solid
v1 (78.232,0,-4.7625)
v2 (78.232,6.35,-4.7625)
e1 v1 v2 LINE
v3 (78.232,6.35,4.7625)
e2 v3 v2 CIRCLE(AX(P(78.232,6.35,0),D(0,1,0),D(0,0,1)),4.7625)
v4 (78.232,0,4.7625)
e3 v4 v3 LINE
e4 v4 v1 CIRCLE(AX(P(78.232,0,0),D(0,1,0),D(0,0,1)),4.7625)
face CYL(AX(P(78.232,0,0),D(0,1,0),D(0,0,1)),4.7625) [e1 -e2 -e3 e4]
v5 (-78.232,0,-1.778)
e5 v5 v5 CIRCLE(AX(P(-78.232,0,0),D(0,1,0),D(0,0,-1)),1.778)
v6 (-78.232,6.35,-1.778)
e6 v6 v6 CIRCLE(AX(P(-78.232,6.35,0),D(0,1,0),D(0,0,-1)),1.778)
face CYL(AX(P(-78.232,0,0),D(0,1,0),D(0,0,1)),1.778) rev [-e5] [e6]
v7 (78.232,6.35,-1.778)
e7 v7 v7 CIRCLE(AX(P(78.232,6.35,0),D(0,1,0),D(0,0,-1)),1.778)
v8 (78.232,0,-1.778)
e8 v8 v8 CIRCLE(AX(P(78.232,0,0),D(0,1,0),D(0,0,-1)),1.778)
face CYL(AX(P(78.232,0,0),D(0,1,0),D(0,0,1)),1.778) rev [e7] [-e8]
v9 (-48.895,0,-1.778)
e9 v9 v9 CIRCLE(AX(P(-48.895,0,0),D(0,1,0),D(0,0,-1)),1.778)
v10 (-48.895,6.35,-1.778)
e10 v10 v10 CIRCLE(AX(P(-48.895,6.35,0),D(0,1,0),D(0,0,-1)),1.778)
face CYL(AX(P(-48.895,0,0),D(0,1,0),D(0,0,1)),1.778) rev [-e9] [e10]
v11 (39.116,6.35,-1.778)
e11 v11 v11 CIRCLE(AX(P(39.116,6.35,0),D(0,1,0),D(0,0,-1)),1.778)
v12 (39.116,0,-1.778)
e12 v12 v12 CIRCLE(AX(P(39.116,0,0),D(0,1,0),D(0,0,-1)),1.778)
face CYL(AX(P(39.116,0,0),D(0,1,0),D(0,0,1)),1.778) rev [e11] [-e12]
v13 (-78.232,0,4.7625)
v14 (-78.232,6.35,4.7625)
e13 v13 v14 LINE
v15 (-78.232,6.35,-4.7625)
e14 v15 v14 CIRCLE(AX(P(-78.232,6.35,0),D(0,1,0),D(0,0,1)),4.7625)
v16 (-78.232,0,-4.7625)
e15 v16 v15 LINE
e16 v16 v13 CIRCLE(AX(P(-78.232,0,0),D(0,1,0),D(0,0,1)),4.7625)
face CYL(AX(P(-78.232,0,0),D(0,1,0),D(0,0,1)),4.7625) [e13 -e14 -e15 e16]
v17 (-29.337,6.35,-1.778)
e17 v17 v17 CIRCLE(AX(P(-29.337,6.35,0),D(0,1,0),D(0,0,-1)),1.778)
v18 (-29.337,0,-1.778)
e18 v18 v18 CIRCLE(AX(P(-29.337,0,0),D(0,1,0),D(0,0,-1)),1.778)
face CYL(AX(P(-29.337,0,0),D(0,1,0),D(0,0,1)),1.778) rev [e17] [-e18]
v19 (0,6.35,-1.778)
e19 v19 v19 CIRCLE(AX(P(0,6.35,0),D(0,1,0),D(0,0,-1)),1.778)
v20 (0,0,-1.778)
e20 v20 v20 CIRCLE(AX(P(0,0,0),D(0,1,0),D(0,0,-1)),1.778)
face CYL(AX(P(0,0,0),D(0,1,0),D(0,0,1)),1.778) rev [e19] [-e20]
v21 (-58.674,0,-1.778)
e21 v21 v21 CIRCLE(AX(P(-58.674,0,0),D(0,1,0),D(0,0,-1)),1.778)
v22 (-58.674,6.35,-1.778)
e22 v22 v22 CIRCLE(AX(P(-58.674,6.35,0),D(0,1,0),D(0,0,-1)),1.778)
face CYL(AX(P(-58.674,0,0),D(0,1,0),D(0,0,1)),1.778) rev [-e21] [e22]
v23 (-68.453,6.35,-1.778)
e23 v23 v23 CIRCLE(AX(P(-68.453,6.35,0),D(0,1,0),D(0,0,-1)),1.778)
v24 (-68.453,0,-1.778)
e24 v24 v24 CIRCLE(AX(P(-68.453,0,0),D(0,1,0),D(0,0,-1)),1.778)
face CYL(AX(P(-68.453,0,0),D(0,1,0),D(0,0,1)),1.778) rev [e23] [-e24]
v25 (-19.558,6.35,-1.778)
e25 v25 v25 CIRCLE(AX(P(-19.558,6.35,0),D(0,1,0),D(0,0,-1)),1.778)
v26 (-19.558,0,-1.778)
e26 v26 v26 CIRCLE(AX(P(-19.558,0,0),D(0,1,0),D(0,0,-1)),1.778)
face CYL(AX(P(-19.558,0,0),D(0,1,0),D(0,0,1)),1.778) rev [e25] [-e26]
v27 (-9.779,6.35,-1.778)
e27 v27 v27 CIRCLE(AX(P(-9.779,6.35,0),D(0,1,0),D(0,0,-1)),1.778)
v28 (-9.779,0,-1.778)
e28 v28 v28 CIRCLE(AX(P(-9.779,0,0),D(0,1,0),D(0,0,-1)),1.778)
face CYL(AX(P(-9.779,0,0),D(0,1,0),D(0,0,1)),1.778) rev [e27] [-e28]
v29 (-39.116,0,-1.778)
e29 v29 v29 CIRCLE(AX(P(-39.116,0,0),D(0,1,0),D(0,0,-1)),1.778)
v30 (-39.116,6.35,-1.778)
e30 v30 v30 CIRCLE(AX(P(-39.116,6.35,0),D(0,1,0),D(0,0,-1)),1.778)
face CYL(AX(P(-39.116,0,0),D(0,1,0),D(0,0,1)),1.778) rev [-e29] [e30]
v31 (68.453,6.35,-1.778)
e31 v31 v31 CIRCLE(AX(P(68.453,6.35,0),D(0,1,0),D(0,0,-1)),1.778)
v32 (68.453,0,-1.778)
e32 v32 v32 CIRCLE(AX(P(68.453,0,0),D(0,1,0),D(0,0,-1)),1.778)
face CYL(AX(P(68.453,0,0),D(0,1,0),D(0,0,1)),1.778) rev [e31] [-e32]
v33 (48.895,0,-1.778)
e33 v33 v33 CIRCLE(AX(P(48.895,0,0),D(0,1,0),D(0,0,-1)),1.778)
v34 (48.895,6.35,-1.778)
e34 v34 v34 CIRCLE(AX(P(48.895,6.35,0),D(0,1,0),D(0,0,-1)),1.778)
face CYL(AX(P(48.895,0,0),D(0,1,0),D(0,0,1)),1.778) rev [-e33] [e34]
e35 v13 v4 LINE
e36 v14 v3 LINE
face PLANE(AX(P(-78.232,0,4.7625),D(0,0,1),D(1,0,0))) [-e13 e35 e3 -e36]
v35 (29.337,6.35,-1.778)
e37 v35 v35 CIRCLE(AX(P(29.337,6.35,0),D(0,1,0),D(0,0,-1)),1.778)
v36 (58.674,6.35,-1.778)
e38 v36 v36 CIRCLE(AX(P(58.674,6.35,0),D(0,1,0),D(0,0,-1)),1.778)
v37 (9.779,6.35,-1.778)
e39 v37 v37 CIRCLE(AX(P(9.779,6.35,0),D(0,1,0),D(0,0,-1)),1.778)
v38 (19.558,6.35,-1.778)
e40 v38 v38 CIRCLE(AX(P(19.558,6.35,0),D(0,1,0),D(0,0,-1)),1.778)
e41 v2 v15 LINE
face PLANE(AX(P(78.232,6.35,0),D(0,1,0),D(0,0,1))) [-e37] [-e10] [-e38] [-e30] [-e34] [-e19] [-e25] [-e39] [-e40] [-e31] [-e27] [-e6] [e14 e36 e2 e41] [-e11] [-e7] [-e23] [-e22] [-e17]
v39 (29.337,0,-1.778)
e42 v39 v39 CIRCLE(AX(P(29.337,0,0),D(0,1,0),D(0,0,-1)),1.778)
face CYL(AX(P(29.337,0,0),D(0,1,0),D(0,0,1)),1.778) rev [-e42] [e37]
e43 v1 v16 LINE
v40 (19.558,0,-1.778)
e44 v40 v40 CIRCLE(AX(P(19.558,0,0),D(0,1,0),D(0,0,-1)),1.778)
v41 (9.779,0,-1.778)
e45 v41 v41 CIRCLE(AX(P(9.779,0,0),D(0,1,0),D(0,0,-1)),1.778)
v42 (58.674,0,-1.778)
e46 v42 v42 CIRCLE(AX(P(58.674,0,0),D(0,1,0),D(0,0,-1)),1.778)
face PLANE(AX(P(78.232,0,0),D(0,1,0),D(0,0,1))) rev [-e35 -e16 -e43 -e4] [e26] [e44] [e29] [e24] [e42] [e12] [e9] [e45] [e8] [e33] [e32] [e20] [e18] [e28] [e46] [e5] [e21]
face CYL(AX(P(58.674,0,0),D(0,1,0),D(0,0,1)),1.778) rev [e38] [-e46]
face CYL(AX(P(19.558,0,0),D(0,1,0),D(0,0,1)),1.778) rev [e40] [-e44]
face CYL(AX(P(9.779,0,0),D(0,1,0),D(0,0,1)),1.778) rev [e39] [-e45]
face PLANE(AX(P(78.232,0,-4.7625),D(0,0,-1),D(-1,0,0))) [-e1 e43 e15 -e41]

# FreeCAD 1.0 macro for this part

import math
import FreeCAD as App
import Part
import Sketcher
from FreeCAD import Vector
Q = App.Units.Quantity

doc = App.newDocument("Part")
body = doc.addObject("PartDesign::Body", "Body")

sketch1 = body.newObject("Sketcher::SketchObject", "Sketch")
sketch1.AttachmentSupport = (doc.getObject("XZ_Plane"), [""])
sketch1.MapMode = "FlatFace"
sketch1.AttachmentOffset = App.Placement(Vector(0, 0, -0.25 * 25.4), App.Rotation())
sketch1.addGeometry(Part.LineSegment(Vector(78.2, -4.8, 0), Vector(-78.2, -4.8, 0)), False)
sketch1.addGeometry(Part.ArcOfCircle(Part.Circle(Vector(-78.2, 0, 0), Vector(0, 0, 1), 4.8), math.radians(90), math.radians(270)), False)
sketch1.addGeometry(Part.LineSegment(Vector(-78.2, 4.8, 0), Vector(78.2, 4.8, 0)), False)
sketch1.addGeometry(Part.ArcOfCircle(Part.Circle(Vector(78.2, 0, 0), Vector(0, 0, 1), 4.8), math.radians(-90), math.radians(90)), False)
sketch1.addGeometry(Part.Circle(Vector(-78.2, 0, 0), Vector(0, 0, 1), 1.8), False)
sketch1.addGeometry(Part.Circle(Vector(-68.5, 0, 0), Vector(0, 0, 1), 1.8), False)
sketch1.addGeometry(Part.Circle(Vector(-58.7, 0, 0), Vector(0, 0, 1), 1.8), False)
sketch1.addGeometry(Part.Circle(Vector(-48.9, 0, 0), Vector(0, 0, 1), 1.8), False)
sketch1.addGeometry(Part.Circle(Vector(-39.1, 0, 0), Vector(0, 0, 1), 1.8), False)
sketch1.addGeometry(Part.Circle(Vector(-29.3, 0, 0), Vector(0, 0, 1), 1.8), False)
sketch1.addGeometry(Part.Circle(Vector(-19.6, 0, 0), Vector(0, 0, 1), 1.8), False)
sketch1.addGeometry(Part.Circle(Vector(-9.8, 0, 0), Vector(0, 0, 1), 1.8), False)
sketch1.addGeometry(Part.Circle(Vector(0, 0, 0), Vector(0, 0, 1), 1.8), False)
sketch1.addGeometry(Part.Circle(Vector(9.8, 0, 0), Vector(0, 0, 1), 1.8), False)
sketch1.addGeometry(Part.Circle(Vector(19.6, 0, 0), Vector(0, 0, 1), 1.8), False)
sketch1.addGeometry(Part.Circle(Vector(29.3, 0, 0), Vector(0, 0, 1), 1.8), False)
sketch1.addGeometry(Part.Circle(Vector(39.1, 0, 0), Vector(0, 0, 1), 1.8), False)
sketch1.addGeometry(Part.Circle(Vector(48.9, 0, 0), Vector(0, 0, 1), 1.8), False)
sketch1.addGeometry(Part.Circle(Vector(58.7, 0, 0), Vector(0, 0, 1), 1.8), False)
sketch1.addGeometry(Part.Circle(Vector(68.5, 0, 0), Vector(0, 0, 1), 1.8), False)
sketch1.addGeometry(Part.Circle(Vector(78.2, 0, 0), Vector(0, 0, 1), 1.8), False)
sketch1.addConstraint(Sketcher.Constraint("Tangent", 0, 2, 1, 2))
sketch1.addConstraint(Sketcher.Constraint("Tangent", 1, 1, 2, 1))
sketch1.addConstraint(Sketcher.Constraint("Tangent", 2, 2, 3, 2))
sketch1.addConstraint(Sketcher.Constraint("Tangent", 3, 1, 0, 1))
sketch1.addConstraint(Sketcher.Constraint("Horizontal", 0))
sketch1.addConstraint(Sketcher.Constraint("Horizontal", 2))
sketch1.addConstraint(Sketcher.Constraint("Coincident", 12, 3, -1, 1))
sketch1.addConstraint(Sketcher.Constraint("Coincident", 4, 3, 1, 3))
sketch1.addConstraint(Sketcher.Constraint("Coincident", 20, 3, 3, 3))
sketch1.addConstraint(Sketcher.Constraint("Equal", 4, 5))
sketch1.addConstraint(Sketcher.Constraint("Equal", 5, 6))
sketch1.addConstraint(Sketcher.Constraint("Equal", 6, 7))
sketch1.addConstraint(Sketcher.Constraint("Equal", 7, 8))
sketch1.addConstraint(Sketcher.Constraint("Equal", 8, 9))
sketch1.addConstraint(Sketcher.Constraint("Equal", 9, 10))
sketch1.addConstraint(Sketcher.Constraint("Equal", 10, 11))
sketch1.addConstraint(Sketcher.Constraint("Equal", 11, 12))
sketch1.addConstraint(Sketcher.Constraint("Equal", 12, 13))
sketch1.addConstraint(Sketcher.Constraint("Equal", 13, 14))
sketch1.addConstraint(Sketcher.Constraint("Equal", 14, 15))
sketch1.addConstraint(Sketcher.Constraint("Equal", 15, 16))
sketch1.addConstraint(Sketcher.Constraint("Equal", 16, 17))
sketch1.addConstraint(Sketcher.Constraint("Equal", 17, 18))
sketch1.addConstraint(Sketcher.Constraint("Equal", 18, 19))
sketch1.addConstraint(Sketcher.Constraint("Equal", 19, 20))
sketch1.addConstraint(Sketcher.Constraint("Symmetric", 1, 3, 3, 3, -1, 1))
sketch1.addConstraint(Sketcher.Constraint("Symmetric", 11, 3, 13, 3, -1, 1))
sketch1.addConstraint(Sketcher.Constraint("Symmetric", 10, 3, 14, 3, -1, 1))
sketch1.addConstraint(Sketcher.Constraint("Symmetric", 9, 3, 15, 3, -1, 1))
sketch1.addConstraint(Sketcher.Constraint("Symmetric", 8, 3, 16, 3, -1, 1))
sketch1.addConstraint(Sketcher.Constraint("Symmetric", 7, 3, 17, 3, -1, 1))
sketch1.addConstraint(Sketcher.Constraint("Symmetric", 6, 3, 18, 3, -1, 1))
sketch1.addConstraint(Sketcher.Constraint("Symmetric", 5, 3, 19, 3, -1, 1))
sketch1.addConstraint(Sketcher.Constraint("PointOnObject", 5, 3, -1))
sketch1.addConstraint(Sketcher.Constraint("PointOnObject", 6, 3, -1))
sketch1.addConstraint(Sketcher.Constraint("PointOnObject", 7, 3, -1))
sketch1.addConstraint(Sketcher.Constraint("PointOnObject", 8, 3, -1))
sketch1.addConstraint(Sketcher.Constraint("PointOnObject", 9, 3, -1))
sketch1.addConstraint(Sketcher.Constraint("PointOnObject", 10, 3, -1))
sketch1.addConstraint(Sketcher.Constraint("PointOnObject", 11, 3, -1))
sketch1.addConstraint(Sketcher.Constraint("Diameter", 4, Q("0.14 in")))
sketch1.addConstraint(Sketcher.Constraint("Radius", 1, Q("0.1875 in")))
sketch1.addConstraint(Sketcher.Constraint("DistanceX", 0, 2, 0, 1, Q("6.16 in")))
sketch1.addConstraint(Sketcher.Constraint("DistanceX", 6, 3, -1, 1, Q("2.31 in")))
sketch1.addConstraint(Sketcher.Constraint("DistanceX", 8, 3, -1, 1, Q("1.54 in")))
sketch1.addConstraint(Sketcher.Constraint("DistanceX", 10, 3, -1, 1, Q("0.77 in")))
sketch1.addConstraint(Sketcher.Constraint("DistanceX", 5, 3, 7, 3, Q("0.77 in")))
sketch1.addConstraint(Sketcher.Constraint("DistanceX", 7, 3, 9, 3, Q("0.77 in")))
sketch1.addConstraint(Sketcher.Constraint("DistanceX", 9, 3, 11, 3, Q("0.77 in")))
sketch1.addConstraint(Sketcher.Constraint("DistanceX", 11, 3, 13, 3, Q("0.77 in")))
pad1 = body.newObject("PartDesign::Pad", "Pad")
pad1.Profile = sketch1
pad1.Length = Q("0.25 in")

doc.recompute()
